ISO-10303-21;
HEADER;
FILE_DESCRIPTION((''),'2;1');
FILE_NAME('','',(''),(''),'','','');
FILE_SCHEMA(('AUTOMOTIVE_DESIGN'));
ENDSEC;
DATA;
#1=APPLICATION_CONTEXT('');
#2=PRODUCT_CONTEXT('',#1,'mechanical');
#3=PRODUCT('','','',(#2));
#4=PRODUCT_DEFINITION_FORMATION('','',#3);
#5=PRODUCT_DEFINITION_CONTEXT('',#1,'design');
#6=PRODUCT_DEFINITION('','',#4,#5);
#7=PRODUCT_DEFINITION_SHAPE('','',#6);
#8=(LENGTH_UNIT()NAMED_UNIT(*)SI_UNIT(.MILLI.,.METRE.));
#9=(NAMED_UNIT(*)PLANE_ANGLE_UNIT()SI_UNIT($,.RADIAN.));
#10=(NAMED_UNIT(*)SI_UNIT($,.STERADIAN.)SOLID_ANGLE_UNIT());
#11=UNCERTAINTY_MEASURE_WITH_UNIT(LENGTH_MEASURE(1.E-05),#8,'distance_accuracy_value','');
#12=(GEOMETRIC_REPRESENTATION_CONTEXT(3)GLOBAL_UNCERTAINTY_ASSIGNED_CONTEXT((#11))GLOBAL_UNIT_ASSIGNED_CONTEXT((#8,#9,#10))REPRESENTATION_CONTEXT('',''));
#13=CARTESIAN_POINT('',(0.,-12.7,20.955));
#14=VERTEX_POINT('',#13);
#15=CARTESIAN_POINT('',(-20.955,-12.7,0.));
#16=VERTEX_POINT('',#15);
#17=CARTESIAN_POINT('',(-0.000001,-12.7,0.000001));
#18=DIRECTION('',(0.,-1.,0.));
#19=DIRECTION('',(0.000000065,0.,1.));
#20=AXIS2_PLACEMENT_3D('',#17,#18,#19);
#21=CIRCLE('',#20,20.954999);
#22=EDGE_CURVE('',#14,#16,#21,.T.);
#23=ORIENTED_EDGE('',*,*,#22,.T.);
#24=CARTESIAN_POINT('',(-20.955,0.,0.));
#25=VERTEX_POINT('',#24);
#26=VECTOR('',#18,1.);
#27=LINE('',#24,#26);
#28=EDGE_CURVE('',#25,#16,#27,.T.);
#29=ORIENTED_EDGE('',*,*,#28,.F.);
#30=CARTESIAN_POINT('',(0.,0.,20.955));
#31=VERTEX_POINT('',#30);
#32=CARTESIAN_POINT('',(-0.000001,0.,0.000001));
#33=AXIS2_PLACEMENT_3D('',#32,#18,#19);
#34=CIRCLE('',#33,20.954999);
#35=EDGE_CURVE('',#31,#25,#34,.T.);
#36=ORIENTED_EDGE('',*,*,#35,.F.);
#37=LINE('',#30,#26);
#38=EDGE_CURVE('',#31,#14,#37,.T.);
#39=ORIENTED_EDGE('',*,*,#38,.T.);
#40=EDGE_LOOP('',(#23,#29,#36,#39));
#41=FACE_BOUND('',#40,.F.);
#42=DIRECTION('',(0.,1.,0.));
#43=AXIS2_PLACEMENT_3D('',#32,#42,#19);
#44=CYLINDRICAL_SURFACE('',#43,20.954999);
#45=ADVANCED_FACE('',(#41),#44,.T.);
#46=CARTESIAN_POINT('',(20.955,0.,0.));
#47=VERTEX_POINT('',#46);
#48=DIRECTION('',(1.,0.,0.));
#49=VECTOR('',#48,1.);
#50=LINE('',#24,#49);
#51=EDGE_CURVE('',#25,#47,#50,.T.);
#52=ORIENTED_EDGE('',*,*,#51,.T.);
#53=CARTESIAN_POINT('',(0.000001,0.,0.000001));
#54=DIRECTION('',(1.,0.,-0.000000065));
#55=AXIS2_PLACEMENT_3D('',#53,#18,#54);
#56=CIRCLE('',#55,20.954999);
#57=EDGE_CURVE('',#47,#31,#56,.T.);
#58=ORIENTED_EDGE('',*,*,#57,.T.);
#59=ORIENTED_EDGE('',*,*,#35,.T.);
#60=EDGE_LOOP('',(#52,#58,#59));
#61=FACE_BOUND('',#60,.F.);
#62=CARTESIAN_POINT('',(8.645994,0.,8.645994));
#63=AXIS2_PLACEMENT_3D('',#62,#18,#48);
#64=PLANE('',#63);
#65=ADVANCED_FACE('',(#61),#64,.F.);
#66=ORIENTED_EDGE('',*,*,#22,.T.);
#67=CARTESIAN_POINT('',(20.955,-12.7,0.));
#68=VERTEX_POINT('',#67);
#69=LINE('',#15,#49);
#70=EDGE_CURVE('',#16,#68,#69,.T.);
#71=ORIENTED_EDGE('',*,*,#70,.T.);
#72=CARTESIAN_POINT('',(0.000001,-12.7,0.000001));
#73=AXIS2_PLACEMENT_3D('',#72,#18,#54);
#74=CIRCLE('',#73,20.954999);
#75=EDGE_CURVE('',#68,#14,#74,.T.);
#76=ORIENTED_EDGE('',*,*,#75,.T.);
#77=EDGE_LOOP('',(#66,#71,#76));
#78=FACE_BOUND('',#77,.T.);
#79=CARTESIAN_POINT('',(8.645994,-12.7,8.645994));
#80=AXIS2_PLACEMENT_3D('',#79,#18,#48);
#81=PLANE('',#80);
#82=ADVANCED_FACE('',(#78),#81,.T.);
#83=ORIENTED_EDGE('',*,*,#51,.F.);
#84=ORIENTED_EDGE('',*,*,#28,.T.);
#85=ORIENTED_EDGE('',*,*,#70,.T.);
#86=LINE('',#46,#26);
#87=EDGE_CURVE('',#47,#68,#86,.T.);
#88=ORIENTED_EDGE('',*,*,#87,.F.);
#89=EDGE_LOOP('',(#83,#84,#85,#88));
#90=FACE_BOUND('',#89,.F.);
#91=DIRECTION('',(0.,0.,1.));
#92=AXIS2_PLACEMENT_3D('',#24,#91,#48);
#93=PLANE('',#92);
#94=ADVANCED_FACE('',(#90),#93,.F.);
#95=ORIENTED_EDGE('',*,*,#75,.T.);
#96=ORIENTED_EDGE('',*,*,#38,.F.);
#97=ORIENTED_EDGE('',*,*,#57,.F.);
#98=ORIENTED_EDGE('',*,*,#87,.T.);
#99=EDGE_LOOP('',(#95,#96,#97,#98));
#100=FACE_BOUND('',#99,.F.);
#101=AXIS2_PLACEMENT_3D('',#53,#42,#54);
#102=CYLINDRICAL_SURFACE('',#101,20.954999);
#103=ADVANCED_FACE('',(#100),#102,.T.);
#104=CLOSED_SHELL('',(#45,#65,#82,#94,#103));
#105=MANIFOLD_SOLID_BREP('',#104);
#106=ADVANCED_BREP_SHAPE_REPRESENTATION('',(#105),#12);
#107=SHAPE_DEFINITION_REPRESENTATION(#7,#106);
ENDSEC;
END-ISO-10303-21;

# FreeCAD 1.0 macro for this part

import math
import FreeCAD as App
import Part
import Sketcher
from FreeCAD import Vector
Q = App.Units.Quantity

doc = App.newDocument("Part")
body = doc.addObject("PartDesign::Body", "Body")

# Sketch on XZ plane
sketch1 = body.newObject("Sketcher::SketchObject", "Sketch")
sketch1.AttachmentSupport = (doc.getObject("XZ_Plane"), [""])
sketch1.MapMode = "FlatFace"
sketch1.addGeometry([
    Part.ArcOfCircle(Part.Circle(Vector(0, 0, 0), Vector(0, 0, 1), 21), math.radians(0), math.radians(90)),
    Part.ArcOfCircle(Part.Circle(Vector(0, 0, 0), Vector(0, 0, 1), 21), math.radians(90), math.radians(180)),
    Part.LineSegment(Vector(-21, 0, 0), Vector(21, 0, 0)),
], False)
sketch1.addConstraint([
    Sketcher.Constraint("Tangent", 0, 2, 1, 1),
    Sketcher.Constraint("Coincident", 1, 2, 2, 1),
    Sketcher.Constraint("Coincident", 2, 2, 0, 1),
    Sketcher.Constraint("Horizontal", 2),
    Sketcher.Constraint("Coincident", 0, 3, -1, 1),
    Sketcher.Constraint("Equal", 0, 1),
    Sketcher.Constraint("PointOnObject", 0, 2, -2),
    Sketcher.Constraint("PointOnObject", 1, 2, -1),
    Sketcher.Constraint("Radius", 0, Q("0.8249999 in")),
])
pad1 = body.newObject("PartDesign::Pad", "Pad")
pad1.Profile = sketch1
pad1.Length = Q("0.5 in")

doc.recompute()
